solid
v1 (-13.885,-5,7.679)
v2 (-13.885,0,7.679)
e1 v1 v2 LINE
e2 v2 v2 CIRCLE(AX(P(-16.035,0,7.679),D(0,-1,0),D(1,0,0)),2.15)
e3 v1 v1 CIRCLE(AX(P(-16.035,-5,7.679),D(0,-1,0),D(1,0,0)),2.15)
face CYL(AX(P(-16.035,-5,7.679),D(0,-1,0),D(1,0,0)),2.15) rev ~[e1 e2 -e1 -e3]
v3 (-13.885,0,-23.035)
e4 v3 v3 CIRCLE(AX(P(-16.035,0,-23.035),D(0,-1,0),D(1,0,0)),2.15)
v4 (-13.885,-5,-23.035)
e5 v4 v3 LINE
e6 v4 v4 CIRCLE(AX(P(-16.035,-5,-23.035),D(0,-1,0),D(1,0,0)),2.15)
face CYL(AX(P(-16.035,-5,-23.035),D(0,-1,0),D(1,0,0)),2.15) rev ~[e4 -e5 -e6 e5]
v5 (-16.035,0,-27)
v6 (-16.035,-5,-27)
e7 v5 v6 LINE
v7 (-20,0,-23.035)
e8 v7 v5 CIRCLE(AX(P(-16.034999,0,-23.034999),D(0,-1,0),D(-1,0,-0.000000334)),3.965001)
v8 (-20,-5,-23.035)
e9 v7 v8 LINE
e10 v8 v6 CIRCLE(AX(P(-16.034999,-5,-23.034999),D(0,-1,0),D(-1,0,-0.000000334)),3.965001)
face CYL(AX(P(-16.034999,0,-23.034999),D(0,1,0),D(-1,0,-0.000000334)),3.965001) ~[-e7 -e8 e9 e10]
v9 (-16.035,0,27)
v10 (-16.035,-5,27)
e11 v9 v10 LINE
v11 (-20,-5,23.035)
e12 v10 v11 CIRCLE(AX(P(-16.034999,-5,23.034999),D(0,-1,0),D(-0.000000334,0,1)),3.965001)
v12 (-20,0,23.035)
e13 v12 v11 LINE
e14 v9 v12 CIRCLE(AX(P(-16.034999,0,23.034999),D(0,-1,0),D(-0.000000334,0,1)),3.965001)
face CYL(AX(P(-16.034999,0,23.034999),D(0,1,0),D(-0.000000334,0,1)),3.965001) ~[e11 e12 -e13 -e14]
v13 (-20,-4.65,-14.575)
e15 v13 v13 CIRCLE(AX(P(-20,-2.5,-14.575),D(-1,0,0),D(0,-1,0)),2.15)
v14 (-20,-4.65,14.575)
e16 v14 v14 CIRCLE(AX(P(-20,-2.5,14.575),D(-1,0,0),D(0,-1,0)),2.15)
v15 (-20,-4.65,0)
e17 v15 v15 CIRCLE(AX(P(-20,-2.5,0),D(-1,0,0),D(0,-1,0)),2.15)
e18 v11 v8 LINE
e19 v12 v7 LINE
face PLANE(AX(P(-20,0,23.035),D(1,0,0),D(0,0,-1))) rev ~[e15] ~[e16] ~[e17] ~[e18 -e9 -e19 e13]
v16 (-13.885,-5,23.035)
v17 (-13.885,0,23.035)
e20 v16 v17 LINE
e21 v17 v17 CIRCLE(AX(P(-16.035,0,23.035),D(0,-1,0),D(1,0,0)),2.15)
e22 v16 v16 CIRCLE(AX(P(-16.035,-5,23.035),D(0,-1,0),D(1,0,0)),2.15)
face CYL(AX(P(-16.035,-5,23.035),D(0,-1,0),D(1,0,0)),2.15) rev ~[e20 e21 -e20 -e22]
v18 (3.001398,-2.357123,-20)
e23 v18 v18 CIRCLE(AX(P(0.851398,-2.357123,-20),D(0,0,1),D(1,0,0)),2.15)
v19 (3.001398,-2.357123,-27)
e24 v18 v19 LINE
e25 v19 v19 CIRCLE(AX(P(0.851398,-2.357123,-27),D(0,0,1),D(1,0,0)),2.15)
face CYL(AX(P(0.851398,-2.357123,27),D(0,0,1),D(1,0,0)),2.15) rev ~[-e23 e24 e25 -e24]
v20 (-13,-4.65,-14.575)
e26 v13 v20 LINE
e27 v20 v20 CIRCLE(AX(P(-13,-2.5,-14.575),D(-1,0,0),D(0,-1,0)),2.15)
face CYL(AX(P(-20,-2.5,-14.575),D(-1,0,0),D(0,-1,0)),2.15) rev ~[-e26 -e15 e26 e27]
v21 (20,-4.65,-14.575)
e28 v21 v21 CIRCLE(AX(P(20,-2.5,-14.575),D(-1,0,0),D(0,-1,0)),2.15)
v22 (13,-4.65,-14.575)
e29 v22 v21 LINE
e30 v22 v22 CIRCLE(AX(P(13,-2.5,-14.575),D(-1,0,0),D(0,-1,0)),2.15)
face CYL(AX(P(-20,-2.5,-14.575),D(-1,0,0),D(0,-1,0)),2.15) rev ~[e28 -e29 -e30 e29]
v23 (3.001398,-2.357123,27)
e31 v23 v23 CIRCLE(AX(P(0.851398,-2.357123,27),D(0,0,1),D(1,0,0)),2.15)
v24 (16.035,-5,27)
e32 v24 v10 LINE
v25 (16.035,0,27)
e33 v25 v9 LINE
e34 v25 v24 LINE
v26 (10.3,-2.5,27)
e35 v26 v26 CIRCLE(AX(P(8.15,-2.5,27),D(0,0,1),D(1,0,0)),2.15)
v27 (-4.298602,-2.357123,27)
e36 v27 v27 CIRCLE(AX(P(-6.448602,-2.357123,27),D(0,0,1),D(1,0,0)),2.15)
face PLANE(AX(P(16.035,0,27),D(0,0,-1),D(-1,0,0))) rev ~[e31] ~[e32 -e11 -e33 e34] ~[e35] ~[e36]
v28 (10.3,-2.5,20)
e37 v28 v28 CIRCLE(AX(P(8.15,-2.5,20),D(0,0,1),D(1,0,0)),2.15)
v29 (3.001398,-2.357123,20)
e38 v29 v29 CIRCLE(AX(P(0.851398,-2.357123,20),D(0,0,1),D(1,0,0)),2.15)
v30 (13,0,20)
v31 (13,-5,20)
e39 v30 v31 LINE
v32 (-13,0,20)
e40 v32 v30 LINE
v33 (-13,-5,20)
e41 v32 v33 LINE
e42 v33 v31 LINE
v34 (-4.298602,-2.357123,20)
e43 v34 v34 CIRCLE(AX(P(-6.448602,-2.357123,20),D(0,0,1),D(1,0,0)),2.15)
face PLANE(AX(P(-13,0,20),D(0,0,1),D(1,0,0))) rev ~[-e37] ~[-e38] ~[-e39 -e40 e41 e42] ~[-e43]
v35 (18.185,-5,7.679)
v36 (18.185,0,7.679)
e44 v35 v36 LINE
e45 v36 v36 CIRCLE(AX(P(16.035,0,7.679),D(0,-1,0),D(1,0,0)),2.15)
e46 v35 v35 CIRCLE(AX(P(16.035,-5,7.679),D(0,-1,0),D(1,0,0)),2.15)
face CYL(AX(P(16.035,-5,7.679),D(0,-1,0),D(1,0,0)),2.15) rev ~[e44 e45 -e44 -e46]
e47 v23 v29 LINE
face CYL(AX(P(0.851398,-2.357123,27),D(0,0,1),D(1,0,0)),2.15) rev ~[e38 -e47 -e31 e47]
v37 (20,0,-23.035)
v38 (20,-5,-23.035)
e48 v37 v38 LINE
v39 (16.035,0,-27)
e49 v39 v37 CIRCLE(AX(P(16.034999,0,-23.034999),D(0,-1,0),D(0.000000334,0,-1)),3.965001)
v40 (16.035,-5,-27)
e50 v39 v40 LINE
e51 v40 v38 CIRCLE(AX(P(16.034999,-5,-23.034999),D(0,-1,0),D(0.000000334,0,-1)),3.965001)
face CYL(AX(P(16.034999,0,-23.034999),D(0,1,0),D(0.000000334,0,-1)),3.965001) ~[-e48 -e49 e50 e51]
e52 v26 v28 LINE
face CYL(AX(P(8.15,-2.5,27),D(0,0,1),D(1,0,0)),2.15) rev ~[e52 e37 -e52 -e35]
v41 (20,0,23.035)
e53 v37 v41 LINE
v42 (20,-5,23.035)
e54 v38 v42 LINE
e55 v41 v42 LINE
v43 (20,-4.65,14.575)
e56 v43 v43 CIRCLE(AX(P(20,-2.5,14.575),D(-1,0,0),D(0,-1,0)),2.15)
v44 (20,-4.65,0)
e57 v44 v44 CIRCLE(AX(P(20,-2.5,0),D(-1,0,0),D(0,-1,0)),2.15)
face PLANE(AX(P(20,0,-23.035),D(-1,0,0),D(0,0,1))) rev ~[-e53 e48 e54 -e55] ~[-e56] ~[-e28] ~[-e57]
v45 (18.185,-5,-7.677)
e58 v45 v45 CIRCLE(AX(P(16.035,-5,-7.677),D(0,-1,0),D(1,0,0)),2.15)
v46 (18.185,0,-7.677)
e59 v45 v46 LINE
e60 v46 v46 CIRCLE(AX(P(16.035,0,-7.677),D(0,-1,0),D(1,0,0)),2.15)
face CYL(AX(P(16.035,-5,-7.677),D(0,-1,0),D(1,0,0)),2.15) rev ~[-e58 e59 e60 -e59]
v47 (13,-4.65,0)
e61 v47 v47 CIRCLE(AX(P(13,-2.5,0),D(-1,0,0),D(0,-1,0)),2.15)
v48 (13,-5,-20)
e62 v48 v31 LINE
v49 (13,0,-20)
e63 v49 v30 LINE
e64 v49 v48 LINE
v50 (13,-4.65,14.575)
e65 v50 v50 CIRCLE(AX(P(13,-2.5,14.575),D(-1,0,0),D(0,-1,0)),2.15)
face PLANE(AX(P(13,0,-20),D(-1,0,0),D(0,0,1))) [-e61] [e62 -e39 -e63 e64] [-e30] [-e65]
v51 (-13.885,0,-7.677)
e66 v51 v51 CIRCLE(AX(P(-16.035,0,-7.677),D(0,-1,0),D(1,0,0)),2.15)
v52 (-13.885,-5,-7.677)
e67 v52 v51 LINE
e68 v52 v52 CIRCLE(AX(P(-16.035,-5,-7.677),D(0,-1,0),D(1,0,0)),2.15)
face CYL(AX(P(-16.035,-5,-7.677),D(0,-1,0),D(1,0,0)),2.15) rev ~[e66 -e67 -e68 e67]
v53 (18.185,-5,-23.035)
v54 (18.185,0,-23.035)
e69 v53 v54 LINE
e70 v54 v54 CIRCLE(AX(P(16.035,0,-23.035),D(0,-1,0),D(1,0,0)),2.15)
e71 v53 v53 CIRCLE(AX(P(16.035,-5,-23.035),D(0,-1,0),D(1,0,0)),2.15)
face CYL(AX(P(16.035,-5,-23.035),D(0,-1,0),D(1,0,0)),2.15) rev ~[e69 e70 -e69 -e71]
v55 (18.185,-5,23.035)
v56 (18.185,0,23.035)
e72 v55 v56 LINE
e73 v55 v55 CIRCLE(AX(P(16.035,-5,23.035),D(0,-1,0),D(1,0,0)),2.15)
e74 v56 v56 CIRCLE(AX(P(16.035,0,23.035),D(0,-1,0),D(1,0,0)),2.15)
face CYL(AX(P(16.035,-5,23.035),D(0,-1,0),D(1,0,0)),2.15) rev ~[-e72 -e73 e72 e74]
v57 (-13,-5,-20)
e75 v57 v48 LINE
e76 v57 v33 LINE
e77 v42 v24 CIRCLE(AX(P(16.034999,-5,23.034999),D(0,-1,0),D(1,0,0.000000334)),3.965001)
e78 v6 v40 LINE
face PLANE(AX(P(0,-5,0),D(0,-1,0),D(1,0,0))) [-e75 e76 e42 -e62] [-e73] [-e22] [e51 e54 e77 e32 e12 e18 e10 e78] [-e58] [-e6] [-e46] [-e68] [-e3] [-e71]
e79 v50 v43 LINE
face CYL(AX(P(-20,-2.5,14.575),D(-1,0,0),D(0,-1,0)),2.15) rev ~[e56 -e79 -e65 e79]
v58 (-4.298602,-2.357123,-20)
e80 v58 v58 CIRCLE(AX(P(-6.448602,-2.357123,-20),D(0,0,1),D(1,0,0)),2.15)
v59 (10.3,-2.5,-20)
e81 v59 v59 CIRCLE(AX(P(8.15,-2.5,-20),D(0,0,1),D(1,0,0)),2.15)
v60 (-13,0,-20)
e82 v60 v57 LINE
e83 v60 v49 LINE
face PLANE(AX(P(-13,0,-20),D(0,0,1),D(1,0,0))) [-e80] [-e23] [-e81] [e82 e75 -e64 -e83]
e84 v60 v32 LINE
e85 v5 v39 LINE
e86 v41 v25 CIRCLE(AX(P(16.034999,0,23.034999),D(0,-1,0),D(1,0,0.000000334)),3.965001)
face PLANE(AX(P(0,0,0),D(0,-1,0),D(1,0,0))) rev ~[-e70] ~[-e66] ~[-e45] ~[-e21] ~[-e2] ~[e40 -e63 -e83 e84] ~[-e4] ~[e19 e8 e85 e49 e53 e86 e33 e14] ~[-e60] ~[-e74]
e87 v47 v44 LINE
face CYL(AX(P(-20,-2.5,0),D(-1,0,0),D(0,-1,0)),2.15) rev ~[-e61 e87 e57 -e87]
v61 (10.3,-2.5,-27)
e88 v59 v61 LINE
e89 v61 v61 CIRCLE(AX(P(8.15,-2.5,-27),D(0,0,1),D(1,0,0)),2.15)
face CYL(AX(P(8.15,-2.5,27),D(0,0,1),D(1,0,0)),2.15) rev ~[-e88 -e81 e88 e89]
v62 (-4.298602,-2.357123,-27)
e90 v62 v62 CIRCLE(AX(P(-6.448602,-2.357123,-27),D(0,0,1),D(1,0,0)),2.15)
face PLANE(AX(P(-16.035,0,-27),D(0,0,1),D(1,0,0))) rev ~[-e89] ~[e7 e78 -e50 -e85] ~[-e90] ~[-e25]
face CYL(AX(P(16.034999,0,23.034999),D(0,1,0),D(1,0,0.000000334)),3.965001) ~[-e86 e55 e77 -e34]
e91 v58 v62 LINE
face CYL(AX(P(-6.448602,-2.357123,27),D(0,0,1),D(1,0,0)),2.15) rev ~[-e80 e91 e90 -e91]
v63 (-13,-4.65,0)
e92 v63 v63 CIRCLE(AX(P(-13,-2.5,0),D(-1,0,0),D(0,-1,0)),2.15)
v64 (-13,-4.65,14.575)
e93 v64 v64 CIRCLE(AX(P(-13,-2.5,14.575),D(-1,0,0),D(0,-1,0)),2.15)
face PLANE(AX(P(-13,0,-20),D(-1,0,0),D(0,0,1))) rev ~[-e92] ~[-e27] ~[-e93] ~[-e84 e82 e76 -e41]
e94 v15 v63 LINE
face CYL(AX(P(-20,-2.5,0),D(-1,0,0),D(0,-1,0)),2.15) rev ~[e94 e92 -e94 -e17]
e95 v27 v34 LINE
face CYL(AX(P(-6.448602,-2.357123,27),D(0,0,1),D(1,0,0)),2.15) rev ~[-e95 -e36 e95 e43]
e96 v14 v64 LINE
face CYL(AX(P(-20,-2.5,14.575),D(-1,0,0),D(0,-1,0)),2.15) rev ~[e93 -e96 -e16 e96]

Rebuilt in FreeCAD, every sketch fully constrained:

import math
import FreeCAD as App
import Part
import Sketcher
Q = App.Units.Quantity


def add_polygon(sketch, points):
    """Adds a closed chain of lines whose ends are joined by coincident constraints."""
    first, n = sketch.GeometryCount, len(points)
    for a, b in zip(points, points[1:] + points[:1]):
        sketch.addGeometry(Part.LineSegment(App.Vector(*a, 0), App.Vector(*b, 0)), False)
    for i in range(n):
        sketch.addConstraint(Sketcher.Constraint("Coincident", first + i, 2, first + (i + 1) % n, 1))

doc = App.newDocument("Part")
body = doc.addObject("PartDesign::Body", "Body")

# Sketch on XZ plane
sketch1 = doc.addObject("Sketcher::SketchObject", "Sketch")
body.addObject(sketch1)
sketch1.AttachmentSupport = (doc.XZ_Plane, [""])
sketch1.MapMode = "FlatFace"
sketch1.addGeometry(Part.ArcOfCircle(Part.Circle(App.Vector(16.034999, 23.034999, 0), App.Vector(0, 0, 1), 3.965001), math.radians(0.000019), math.radians(89.999981)), False)  # 0
sketch1.addGeometry(Part.LineSegment(App.Vector(16.035, 27, 0), App.Vector(-16.035, 27, 0)), False)  # 1
sketch1.addGeometry(Part.ArcOfCircle(Part.Circle(App.Vector(-16.034999, 23.034999, 0), App.Vector(0, 0, 1), 3.965001), math.radians(90.000019), math.radians(179.999981)), False)  # 2
sketch1.addGeometry(Part.LineSegment(App.Vector(-20, 23.035, 0), App.Vector(-20, -23.035, 0)), False)  # 3
sketch1.addGeometry(Part.ArcOfCircle(Part.Circle(App.Vector(-16.034999, -23.034999, 0), App.Vector(0, 0, 1), 3.965001), math.radians(-179.999981), math.radians(-90.000019)), False)  # 4
sketch1.addGeometry(Part.LineSegment(App.Vector(-16.035, -27, 0), App.Vector(16.035, -27, 0)), False)  # 5
sketch1.addGeometry(Part.ArcOfCircle(Part.Circle(App.Vector(16.034999, -23.034999, 0), App.Vector(0, 0, 1), 3.965001), math.radians(-89.999981), math.radians(-0.000019)), False)  # 6
sketch1.addGeometry(Part.LineSegment(App.Vector(20, -23.035, 0), App.Vector(20, 23.035, 0)), False)  # 7
add_polygon(sketch1, [(13, -20), (-13, -20), (-13, 20), (13, 20)])  # lines 8-11
sketch1.addConstraint(Sketcher.Constraint("Tangent", 0, 2, 1, 1))
sketch1.addConstraint(Sketcher.Constraint("Tangent", 1, 2, 2, 1))
sketch1.addConstraint(Sketcher.Constraint("Tangent", 2, 2, 3, 1))
sketch1.addConstraint(Sketcher.Constraint("Tangent", 3, 2, 4, 1))
sketch1.addConstraint(Sketcher.Constraint("Tangent", 4, 2, 5, 1))
sketch1.addConstraint(Sketcher.Constraint("Tangent", 5, 2, 6, 1))
sketch1.addConstraint(Sketcher.Constraint("Tangent", 6, 2, 7, 1))
sketch1.addConstraint(Sketcher.Constraint("Tangent", 7, 2, 0, 1))
sketch1.addConstraint(Sketcher.Constraint("Horizontal", 1))
sketch1.addConstraint(Sketcher.Constraint("Vertical", 3))
sketch1.addConstraint(Sketcher.Constraint("Horizontal", 5))
sketch1.addConstraint(Sketcher.Constraint("Vertical", 7))
sketch1.addConstraint(Sketcher.Constraint("Horizontal", 8))
sketch1.addConstraint(Sketcher.Constraint("Vertical", 9))
sketch1.addConstraint(Sketcher.Constraint("Horizontal", 10))
sketch1.addConstraint(Sketcher.Constraint("Vertical", 11))
sketch1.addConstraint(Sketcher.Constraint("Equal", 0, 2))
sketch1.addConstraint(Sketcher.Constraint("Equal", 2, 4))
sketch1.addConstraint(Sketcher.Constraint("Equal", 4, 6))
sketch1.addConstraint(Sketcher.Constraint("Symmetric", 0, 3, 4, 3, -1, 1))
sketch1.addConstraint(Sketcher.Constraint("Symmetric", 8, 2, 10, 2, -1, 1))
sketch1.addConstraint(Sketcher.Constraint("DistanceX", 8, 2, 8, 1, Q("26 mm")))
sketch1.addConstraint(Sketcher.Constraint("DistanceY", 9, 1, 9, 2, Q("40 mm")))
sketch1.addConstraint(Sketcher.Constraint("DistanceY", -1, 1, 0, 2, Q("27 mm")))
sketch1.addConstraint(Sketcher.Constraint("DistanceX", 2, 2, -1, 1, Q("20 mm")))
sketch1.addConstraint(Sketcher.Constraint("Radius", 0, Q("3.965001 mm")))
pad1 = doc.addObject("PartDesign::Pad", "Pad")
body.addObject(pad1)
pad1.Profile = sketch1
pad1.Length = 5

# Sketch on XZ plane
sketch2 = doc.addObject("Sketcher::SketchObject", "Sketch001")
body.addObject(sketch2)
sketch2.AttachmentSupport = (doc.XZ_Plane, [""])
sketch2.MapMode = "FlatFace"
sketch2.AttachmentOffset = App.Placement(App.Vector(0, 0, 5), App.Rotation())
sketch2.addGeometry(Part.Circle(App.Vector(-16.035, -23.035, 0), App.Vector(0, 0, 1), 2.15), False)
sketch2.addGeometry(Part.Circle(App.Vector(-16.035, -7.677, 0), App.Vector(0, 0, 1), 2.15), False)
sketch2.addGeometry(Part.Circle(App.Vector(-16.035, 7.679, 0), App.Vector(0, 0, 1), 2.15), False)
sketch2.addGeometry(Part.Circle(App.Vector(-16.035, 23.035, 0), App.Vector(0, 0, 1), 2.15), False)
sketch2.addGeometry(Part.Circle(App.Vector(16.035, 23.035, 0), App.Vector(0, 0, 1), 2.15), False)
sketch2.addGeometry(Part.Circle(App.Vector(16.035, 7.679, 0), App.Vector(0, 0, 1), 2.15), False)
sketch2.addGeometry(Part.Circle(App.Vector(16.035, -7.677, 0), App.Vector(0, 0, 1), 2.15), False)
sketch2.addGeometry(Part.Circle(App.Vector(16.035, -23.035, 0), App.Vector(0, 0, 1), 2.15), False)
sketch2.addConstraint(Sketcher.Constraint("Equal", 0, 1))
sketch2.addConstraint(Sketcher.Constraint("Equal", 1, 2))
sketch2.addConstraint(Sketcher.Constraint("Equal", 2, 3))
sketch2.addConstraint(Sketcher.Constraint("Equal", 3, 4))
sketch2.addConstraint(Sketcher.Constraint("Equal", 4, 5))
sketch2.addConstraint(Sketcher.Constraint("Equal", 5, 6))
sketch2.addConstraint(Sketcher.Constraint("Equal", 6, 7))
sketch2.addConstraint(Sketcher.Constraint("Symmetric", 0, 3, 4, 3, -1, 1))
sketch2.addConstraint(Sketcher.Constraint("Symmetric", 3, 3, 7, 3, -1, 1))
sketch2.addConstraint(Sketcher.Constraint("Symmetric", 3, 3, 4, 3, -2))
sketch2.addConstraint(Sketcher.Constraint("Symmetric", 2, 3, 5, 3, -2))
sketch2.addConstraint(Sketcher.Constraint("Symmetric", 1, 3, 6, 3, -2))
sketch2.addConstraint(Sketcher.Constraint("Vertical", 0, 3, 1, 3))
sketch2.addConstraint(Sketcher.Constraint("Vertical", 1, 3, 2, 3))
sketch2.addConstraint(Sketcher.Constraint("Diameter", 0, Q("4.3 mm")))
sketch2.addConstraint(Sketcher.Constraint("DistanceY", 0, 3, 3, 3, Q("46.07 mm")))
sketch2.addConstraint(Sketcher.Constraint("DistanceX", 3, 3, 4, 3, Q("32.07 mm")))
sketch2.addConstraint(Sketcher.Constraint("DistanceY", 1, 3, -1, 1, Q("7.677 mm")))
sketch2.addConstraint(Sketcher.Constraint("DistanceY", -1, 1, 2, 3, Q("7.679 mm")))
pocket1 = doc.addObject("PartDesign::Pocket", "Pocket")
body.addObject(pocket1)
pocket1.Profile = sketch2
pocket1.Type = "ThroughAll"

# Sketch on XY plane
sketch3 = doc.addObject("Sketcher::SketchObject", "Sketch002")
body.addObject(sketch3)
sketch3.AttachmentSupport = (doc.XY_Plane, [""])
sketch3.MapMode = "FlatFace"
sketch3.AttachmentOffset = App.Placement(App.Vector(0, 0, 27), App.Rotation())
sketch3.addGeometry(Part.Circle(App.Vector(8.15, -2.5, 0), App.Vector(0, 0, 1), 2.15), False)
sketch3.addGeometry(Part.Circle(App.Vector(0.851398, -2.357123, 0), App.Vector(0, 0, 1), 2.15), False)
sketch3.addGeometry(Part.Circle(App.Vector(-6.448602, -2.357123, 0), App.Vector(0, 0, 1), 2.15), False)
sketch3.addConstraint(Sketcher.Constraint("Equal", 0, 1))
sketch3.addConstraint(Sketcher.Constraint("Equal", 1, 2))
sketch3.addConstraint(Sketcher.Constraint("Horizontal", 1, 3, 2, 3))
sketch3.addConstraint(Sketcher.Constraint("Diameter", 0, Q("4.3 mm")))
sketch3.addConstraint(Sketcher.Constraint("DistanceY", 0, 3, -1, 1, Q("2.5 mm")))
sketch3.addConstraint(Sketcher.Constraint("DistanceX", 2, 3, 1, 3, Q("7.3 mm")))
sketch3.addConstraint(Sketcher.Constraint("DistanceX", -1, 1, 0, 3, Q("8.15 mm")))
sketch3.addConstraint(Sketcher.Constraint("DistanceX", -1, 1, 1, 3, Q("0.851398 mm")))
sketch3.addConstraint(Sketcher.Constraint("DistanceY", 1, 3, -1, 1, Q("2.357123 mm")))
pocket2 = doc.addObject("PartDesign::Pocket", "Pocket001")
body.addObject(pocket2)
pocket2.Profile = sketch3
pocket2.Type = "ThroughAll"

# Sketch on YZ plane
sketch4 = doc.addObject("Sketcher::SketchObject", "Sketch003")
body.addObject(sketch4)
sketch4.AttachmentSupport = (doc.YZ_Plane, [""])
sketch4.MapMode = "FlatFace"
sketch4.AttachmentOffset = App.Placement(App.Vector(0, 0, -20), App.Rotation())
sketch4.addGeometry(Part.Circle(App.Vector(-2.5, 14.575, 0), App.Vector(0, 0, 1), 2.15), False)
sketch4.addGeometry(Part.Circle(App.Vector(-2.5, 0, 0), App.Vector(0, 0, 1), 2.15), False)
sketch4.addGeometry(Part.Circle(App.Vector(-2.5, -14.575, 0), App.Vector(0, 0, 1), 2.15), False)
sketch4.addConstraint(Sketcher.Constraint("Equal", 0, 1))
sketch4.addConstraint(Sketcher.Constraint("Equal", 1, 2))
sketch4.addConstraint(Sketcher.Constraint("Symmetric", 0, 3, 2, 3, -1))
sketch4.addConstraint(Sketcher.Constraint("PointOnObject", 1, 3, -1))
sketch4.addConstraint(Sketcher.Constraint("Vertical", 0, 3, 1, 3))
sketch4.addConstraint(Sketcher.Constraint("Diameter", 0, Q("4.3 mm")))
sketch4.addConstraint(Sketcher.Constraint("DistanceX", 0, 3, -1, 1, Q("2.5 mm")))
sketch4.addConstraint(Sketcher.Constraint("DistanceY", 2, 3, 0, 3, Q("29.15 mm")))
pocket3 = doc.addObject("PartDesign::Pocket", "Pocket002")
body.addObject(pocket3)
pocket3.Profile = sketch4
pocket3.Type = "ThroughAll"
pocket3.Reversed = True

doc.recompute()
